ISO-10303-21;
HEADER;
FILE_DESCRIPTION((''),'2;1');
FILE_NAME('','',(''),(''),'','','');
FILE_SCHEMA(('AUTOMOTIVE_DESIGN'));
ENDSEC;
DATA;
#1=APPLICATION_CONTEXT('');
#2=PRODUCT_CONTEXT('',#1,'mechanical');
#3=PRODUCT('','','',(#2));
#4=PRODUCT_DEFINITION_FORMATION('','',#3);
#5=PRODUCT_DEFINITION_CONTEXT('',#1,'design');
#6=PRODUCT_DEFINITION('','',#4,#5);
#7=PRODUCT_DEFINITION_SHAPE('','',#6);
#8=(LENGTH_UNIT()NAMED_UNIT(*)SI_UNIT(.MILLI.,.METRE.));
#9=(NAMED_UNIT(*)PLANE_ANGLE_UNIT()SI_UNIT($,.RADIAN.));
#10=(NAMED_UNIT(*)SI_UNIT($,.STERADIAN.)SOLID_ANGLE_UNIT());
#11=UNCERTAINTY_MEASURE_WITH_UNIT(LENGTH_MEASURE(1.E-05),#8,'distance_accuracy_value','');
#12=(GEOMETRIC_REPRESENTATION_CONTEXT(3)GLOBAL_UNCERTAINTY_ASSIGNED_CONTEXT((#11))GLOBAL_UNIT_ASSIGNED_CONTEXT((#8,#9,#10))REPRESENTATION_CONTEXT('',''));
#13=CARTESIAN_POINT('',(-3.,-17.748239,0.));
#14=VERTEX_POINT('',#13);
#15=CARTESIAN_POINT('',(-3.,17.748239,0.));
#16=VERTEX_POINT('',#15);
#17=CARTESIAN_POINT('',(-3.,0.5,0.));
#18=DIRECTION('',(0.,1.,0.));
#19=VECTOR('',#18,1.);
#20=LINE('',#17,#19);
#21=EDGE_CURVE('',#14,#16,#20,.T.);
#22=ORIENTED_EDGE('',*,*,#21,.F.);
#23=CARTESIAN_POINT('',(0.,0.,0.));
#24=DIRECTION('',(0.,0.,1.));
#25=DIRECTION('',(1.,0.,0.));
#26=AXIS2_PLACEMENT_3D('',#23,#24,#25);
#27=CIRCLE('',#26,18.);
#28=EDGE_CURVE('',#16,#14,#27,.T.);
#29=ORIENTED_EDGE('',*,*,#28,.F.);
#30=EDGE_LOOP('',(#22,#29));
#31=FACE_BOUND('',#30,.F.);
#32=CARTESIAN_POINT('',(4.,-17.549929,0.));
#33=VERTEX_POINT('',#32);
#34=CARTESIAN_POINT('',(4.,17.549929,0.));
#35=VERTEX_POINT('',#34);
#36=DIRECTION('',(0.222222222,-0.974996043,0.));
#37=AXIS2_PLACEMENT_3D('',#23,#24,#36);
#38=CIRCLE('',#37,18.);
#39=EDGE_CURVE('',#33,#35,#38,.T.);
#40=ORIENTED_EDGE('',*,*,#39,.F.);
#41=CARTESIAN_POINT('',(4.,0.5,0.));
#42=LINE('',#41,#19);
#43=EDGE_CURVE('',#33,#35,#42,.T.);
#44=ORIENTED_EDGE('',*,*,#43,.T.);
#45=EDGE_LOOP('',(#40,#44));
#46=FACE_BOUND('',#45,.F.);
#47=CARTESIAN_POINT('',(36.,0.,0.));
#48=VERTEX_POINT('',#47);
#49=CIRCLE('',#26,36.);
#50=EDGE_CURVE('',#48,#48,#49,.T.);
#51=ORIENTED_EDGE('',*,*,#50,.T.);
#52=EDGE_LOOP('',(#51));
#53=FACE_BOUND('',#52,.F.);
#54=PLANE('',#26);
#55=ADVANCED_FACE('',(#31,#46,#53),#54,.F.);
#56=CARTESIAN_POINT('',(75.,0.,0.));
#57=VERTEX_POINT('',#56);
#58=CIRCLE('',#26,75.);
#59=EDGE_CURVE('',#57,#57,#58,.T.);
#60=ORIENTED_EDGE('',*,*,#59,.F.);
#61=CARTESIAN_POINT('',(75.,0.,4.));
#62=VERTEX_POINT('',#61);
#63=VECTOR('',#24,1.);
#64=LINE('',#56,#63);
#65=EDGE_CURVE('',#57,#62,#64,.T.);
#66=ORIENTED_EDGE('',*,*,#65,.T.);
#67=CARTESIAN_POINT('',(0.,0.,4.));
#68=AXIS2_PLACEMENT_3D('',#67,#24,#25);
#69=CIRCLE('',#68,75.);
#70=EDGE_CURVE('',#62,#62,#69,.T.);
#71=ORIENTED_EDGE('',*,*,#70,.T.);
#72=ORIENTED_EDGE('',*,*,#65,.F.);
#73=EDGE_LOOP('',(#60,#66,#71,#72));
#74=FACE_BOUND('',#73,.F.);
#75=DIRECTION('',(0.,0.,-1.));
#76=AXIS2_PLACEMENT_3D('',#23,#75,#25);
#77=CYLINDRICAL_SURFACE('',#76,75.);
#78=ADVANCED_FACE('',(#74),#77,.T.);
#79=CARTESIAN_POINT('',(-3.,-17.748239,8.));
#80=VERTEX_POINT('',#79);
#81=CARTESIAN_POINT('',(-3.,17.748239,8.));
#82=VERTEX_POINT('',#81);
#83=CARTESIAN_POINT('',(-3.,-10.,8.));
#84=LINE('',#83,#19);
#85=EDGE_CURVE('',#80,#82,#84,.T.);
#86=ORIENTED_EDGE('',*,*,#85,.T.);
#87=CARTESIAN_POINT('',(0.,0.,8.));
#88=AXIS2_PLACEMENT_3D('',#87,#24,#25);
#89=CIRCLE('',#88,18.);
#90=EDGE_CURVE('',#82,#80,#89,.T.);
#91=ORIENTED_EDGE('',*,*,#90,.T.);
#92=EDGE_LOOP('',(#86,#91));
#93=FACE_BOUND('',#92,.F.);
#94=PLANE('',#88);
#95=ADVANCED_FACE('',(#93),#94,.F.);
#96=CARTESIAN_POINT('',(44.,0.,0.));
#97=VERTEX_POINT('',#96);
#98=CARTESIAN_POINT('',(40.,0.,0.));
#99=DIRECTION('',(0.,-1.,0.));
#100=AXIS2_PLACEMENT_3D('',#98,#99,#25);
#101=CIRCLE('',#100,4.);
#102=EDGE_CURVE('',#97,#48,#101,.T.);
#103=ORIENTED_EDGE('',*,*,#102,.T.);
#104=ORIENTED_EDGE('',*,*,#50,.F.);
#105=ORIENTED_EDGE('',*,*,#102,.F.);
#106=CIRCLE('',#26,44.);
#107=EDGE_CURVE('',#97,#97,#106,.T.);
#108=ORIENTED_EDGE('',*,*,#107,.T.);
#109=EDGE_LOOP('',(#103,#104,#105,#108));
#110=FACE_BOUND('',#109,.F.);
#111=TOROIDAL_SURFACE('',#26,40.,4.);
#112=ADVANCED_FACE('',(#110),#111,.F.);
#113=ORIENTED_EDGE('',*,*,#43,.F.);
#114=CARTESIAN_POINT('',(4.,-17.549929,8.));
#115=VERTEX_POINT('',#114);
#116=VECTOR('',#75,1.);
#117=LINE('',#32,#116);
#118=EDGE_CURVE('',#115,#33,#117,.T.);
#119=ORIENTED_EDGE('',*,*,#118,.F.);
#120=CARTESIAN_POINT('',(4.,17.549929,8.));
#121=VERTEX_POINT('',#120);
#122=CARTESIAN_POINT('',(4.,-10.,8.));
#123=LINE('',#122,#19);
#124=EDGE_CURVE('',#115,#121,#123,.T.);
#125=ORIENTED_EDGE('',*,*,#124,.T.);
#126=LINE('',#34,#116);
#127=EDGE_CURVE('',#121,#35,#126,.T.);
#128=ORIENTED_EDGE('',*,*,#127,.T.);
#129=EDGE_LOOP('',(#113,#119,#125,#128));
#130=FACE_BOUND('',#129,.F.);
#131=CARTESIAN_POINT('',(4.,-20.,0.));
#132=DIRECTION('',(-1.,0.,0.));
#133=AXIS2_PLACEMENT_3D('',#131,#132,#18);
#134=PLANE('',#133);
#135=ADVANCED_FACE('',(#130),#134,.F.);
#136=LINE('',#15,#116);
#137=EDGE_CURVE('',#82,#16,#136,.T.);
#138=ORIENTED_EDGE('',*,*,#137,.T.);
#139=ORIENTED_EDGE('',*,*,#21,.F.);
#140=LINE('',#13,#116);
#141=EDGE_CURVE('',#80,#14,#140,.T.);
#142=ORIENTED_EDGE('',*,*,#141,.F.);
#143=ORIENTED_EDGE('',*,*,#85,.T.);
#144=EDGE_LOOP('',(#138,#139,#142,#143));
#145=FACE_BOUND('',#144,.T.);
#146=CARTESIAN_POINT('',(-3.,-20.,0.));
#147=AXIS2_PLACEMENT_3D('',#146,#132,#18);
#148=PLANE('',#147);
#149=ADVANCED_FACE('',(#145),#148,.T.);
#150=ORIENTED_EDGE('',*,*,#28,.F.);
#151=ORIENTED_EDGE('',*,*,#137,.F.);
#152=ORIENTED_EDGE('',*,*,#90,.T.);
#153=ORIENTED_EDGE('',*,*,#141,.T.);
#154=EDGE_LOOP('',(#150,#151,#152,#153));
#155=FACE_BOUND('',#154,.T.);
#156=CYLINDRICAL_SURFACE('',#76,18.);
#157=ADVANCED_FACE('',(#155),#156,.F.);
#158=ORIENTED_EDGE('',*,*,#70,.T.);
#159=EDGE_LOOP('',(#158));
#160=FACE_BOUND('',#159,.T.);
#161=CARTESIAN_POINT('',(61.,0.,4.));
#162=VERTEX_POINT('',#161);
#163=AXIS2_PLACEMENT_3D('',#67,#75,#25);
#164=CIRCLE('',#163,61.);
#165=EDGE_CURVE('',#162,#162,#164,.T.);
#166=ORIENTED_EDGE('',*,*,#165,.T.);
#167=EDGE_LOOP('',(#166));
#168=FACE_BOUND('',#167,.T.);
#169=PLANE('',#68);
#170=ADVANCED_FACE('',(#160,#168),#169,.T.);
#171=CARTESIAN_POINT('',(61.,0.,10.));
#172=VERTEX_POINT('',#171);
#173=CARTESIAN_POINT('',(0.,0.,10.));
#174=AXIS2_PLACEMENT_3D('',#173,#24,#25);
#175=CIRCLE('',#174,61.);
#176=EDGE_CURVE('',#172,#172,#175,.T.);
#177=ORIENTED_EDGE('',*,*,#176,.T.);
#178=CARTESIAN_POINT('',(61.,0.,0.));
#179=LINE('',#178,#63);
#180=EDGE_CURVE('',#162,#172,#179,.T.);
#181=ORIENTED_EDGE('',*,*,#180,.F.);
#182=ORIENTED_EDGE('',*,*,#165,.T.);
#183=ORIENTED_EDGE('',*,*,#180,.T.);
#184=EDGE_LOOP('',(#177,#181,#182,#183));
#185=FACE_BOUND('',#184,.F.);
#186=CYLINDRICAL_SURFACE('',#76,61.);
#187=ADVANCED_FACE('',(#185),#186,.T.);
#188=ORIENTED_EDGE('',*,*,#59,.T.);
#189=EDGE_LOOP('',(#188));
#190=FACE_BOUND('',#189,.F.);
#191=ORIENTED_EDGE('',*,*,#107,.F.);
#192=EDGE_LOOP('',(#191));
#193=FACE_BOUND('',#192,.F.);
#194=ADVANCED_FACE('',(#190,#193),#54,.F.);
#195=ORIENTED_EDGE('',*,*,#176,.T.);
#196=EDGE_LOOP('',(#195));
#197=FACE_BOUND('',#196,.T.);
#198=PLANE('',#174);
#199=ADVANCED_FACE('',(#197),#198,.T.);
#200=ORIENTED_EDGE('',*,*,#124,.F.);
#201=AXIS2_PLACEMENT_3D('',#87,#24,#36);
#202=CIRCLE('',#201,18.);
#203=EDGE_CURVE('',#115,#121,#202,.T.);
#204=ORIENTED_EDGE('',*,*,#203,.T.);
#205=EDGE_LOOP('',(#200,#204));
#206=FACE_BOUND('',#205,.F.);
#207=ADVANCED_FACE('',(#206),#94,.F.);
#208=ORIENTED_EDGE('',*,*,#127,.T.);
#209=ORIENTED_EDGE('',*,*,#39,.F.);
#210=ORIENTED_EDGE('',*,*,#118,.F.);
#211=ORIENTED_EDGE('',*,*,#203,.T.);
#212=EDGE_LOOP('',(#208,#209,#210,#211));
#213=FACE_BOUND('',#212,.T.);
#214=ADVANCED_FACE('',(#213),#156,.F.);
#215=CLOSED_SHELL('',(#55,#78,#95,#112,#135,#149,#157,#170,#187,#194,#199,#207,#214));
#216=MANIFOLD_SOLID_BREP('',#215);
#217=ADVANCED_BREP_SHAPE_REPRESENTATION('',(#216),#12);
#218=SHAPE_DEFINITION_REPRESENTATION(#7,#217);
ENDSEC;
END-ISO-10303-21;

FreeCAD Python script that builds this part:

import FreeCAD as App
import Part
import Sketcher
Q = App.Units.Quantity

doc = App.newDocument("Part")
body = doc.addObject("PartDesign::Body", "Body")

sketch1 = doc.addObject("Sketcher::SketchObject", "Sketch")
body.addObject(sketch1)
sketch1.AttachmentSupport = (doc.XZ_Plane, [""])
sketch1.MapMode = "FlatFace"
sketch1.addGeometry(Part.Circle(App.Vector(40, 0, 0), App.Vector(0, 0, 1), 4), False)
sketch1.addConstraint([
    Sketcher.Constraint("PointOnObject", 0, 3, -1),
    Sketcher.Constraint("Diameter", 0, Q("8 mm")),
    Sketcher.Constraint("DistanceX", -1, 1, 0, 3, Q("40 mm")),
])
revolution = doc.addObject("PartDesign::Revolution", "Revolution")
body.addObject(revolution)
revolution.Profile = sketch1
revolution.ReferenceAxis = (sketch1, ["V_Axis"])
revolution.Angle = 360
body2 = doc.addObject("PartDesign::Body", "Body001")

sketch2 = doc.addObject("Sketcher::SketchObject", "Sketch001")
body2.addObject(sketch2)
sketch2.AttachmentSupport = (doc.getObject("XY_Plane001"), [""])
sketch2.MapMode = "FlatFace"
sketch2.AttachmentOffset = App.Placement(App.Vector(0, 0, 8), App.Rotation())
sketch2.addGeometry(Part.Circle(App.Vector(0, 0, 0), App.Vector(0, 0, 1), 18), False)
sketch2.addConstraint([
    Sketcher.Constraint("Coincident", 0, 3, -1, 1),
    Sketcher.Constraint("Diameter", 0, Q("36 mm")),
])
pad1 = doc.addObject("PartDesign::Pad", "Pad")
body2.addObject(pad1)
pad1.Profile = sketch2
pad1.Length = 2
body3 = doc.addObject("PartDesign::Body", "Body002")

sketch3 = doc.addObject("Sketcher::SketchObject", "Sketch002")
body3.addObject(sketch3)
sketch3.AttachmentSupport = (doc.getObject("XY_Plane002"), [""])
sketch3.MapMode = "FlatFace"
sketch3.addGeometry([
    Part.LineSegment(App.Vector(-3, 21, 0), App.Vector(-3, -20, 0)),
    Part.LineSegment(App.Vector(-3, -20, 0), App.Vector(4, -20, 0)),
    Part.LineSegment(App.Vector(4, -20, 0), App.Vector(4, 21, 0)),
    Part.LineSegment(App.Vector(4, 21, 0), App.Vector(-3, 21, 0)),
], False)
sketch3.addConstraint([
    Sketcher.Constraint("Coincident", 0, 2, 1, 1),
    Sketcher.Constraint("Coincident", 1, 2, 2, 1),
    Sketcher.Constraint("Coincident", 2, 2, 3, 1),
    Sketcher.Constraint("Coincident", 3, 2, 0, 1),
    Sketcher.Constraint("Vertical", 0),
    Sketcher.Constraint("Horizontal", 1),
    Sketcher.Constraint("Vertical", 2),
    Sketcher.Constraint("Horizontal", 3),
    Sketcher.Constraint("DistanceX", 1, 1, 1, 2, Q("7 mm")),
    Sketcher.Constraint("DistanceY", 0, 2, 0, 1, Q("41 mm")),
    Sketcher.Constraint("DistanceX", 0, 2, -1, 1, Q("3 mm")),
    Sketcher.Constraint("DistanceY", 0, 2, -1, 1, Q("20 mm")),
])
pad2 = doc.addObject("PartDesign::Pad", "Pad001")
body3.addObject(pad2)
pad2.Profile = sketch3
pad2.Length = 10
body4 = doc.addObject("PartDesign::Body", "Body003")

sketch4 = doc.addObject("Sketcher::SketchObject", "Sketch003")
body4.addObject(sketch4)
sketch4.AttachmentSupport = (doc.getObject("XY_Plane003"), [""])
sketch4.MapMode = "FlatFace"
sketch4.addGeometry(Part.Circle(App.Vector(0, 0, 0), App.Vector(0, 0, 1), 18), False)
sketch4.addConstraint([
    Sketcher.Constraint("Coincident", 0, 3, -1, 1),
    Sketcher.Constraint("Diameter", 0, Q("36 mm")),
])
pad3 = doc.addObject("PartDesign::Pad", "Pad002")
body4.addObject(pad3)
pad3.Profile = sketch4
pad3.Length = 10
body5 = doc.addObject("PartDesign::Body", "Body004")

sketch5 = doc.addObject("Sketcher::SketchObject", "Sketch004")
body5.addObject(sketch5)
sketch5.AttachmentSupport = (doc.getObject("XY_Plane004"), [""])
sketch5.MapMode = "FlatFace"
sketch5.addGeometry(Part.Circle(App.Vector(0, 0, 0), App.Vector(0, 0, 1), 75), False)
sketch5.addConstraint([
    Sketcher.Constraint("Coincident", 0, 3, -1, 1),
    Sketcher.Constraint("Diameter", 0, Q("150 mm")),
])
pad4 = doc.addObject("PartDesign::Pad", "Pad003")
body5.addObject(pad4)
pad4.Profile = sketch5
pad4.Length = 4
body6 = doc.addObject("PartDesign::Body", "Body005")

sketch6 = doc.addObject("Sketcher::SketchObject", "Sketch005")
body6.addObject(sketch6)
sketch6.AttachmentSupport = (doc.getObject("XY_Plane005"), [""])
sketch6.MapMode = "FlatFace"
sketch6.addGeometry(Part.Circle(App.Vector(0, 0, 0), App.Vector(0, 0, 1), 61), False)
sketch6.addConstraint([
    Sketcher.Constraint("Coincident", 0, 3, -1, 1),
    Sketcher.Constraint("Diameter", 0, Q("122 mm")),
])
pad5 = doc.addObject("PartDesign::Pad", "Pad004")
body6.addObject(pad5)
pad5.Profile = sketch6
pad5.Length = 10
doc.recompute()

boolean = doc.addObject("PartDesign::Boolean", "Boolean")
body6.addObject(boolean)
boolean.Type = "Fuse"
boolean.addObjects([body5])
doc.recompute()

boolean2 = doc.addObject("PartDesign::Boolean", "Boolean001")
body6.addObject(boolean2)
boolean2.Type = "Cut"
boolean2.addObjects([body4])
doc.recompute()

boolean3 = doc.addObject("PartDesign::Boolean", "Boolean002")
body6.addObject(boolean3)
boolean3.Type = "Fuse"
boolean3.addObjects([body3])
doc.recompute()

boolean4 = doc.addObject("PartDesign::Boolean", "Boolean003")
body6.addObject(boolean4)
boolean4.Type = "Fuse"
boolean4.addObjects([body2])
doc.recompute()

boolean5 = doc.addObject("PartDesign::Boolean", "Boolean004")
body6.addObject(boolean5)
boolean5.Type = "Cut"
boolean5.addObjects([body])

doc.recompute()
